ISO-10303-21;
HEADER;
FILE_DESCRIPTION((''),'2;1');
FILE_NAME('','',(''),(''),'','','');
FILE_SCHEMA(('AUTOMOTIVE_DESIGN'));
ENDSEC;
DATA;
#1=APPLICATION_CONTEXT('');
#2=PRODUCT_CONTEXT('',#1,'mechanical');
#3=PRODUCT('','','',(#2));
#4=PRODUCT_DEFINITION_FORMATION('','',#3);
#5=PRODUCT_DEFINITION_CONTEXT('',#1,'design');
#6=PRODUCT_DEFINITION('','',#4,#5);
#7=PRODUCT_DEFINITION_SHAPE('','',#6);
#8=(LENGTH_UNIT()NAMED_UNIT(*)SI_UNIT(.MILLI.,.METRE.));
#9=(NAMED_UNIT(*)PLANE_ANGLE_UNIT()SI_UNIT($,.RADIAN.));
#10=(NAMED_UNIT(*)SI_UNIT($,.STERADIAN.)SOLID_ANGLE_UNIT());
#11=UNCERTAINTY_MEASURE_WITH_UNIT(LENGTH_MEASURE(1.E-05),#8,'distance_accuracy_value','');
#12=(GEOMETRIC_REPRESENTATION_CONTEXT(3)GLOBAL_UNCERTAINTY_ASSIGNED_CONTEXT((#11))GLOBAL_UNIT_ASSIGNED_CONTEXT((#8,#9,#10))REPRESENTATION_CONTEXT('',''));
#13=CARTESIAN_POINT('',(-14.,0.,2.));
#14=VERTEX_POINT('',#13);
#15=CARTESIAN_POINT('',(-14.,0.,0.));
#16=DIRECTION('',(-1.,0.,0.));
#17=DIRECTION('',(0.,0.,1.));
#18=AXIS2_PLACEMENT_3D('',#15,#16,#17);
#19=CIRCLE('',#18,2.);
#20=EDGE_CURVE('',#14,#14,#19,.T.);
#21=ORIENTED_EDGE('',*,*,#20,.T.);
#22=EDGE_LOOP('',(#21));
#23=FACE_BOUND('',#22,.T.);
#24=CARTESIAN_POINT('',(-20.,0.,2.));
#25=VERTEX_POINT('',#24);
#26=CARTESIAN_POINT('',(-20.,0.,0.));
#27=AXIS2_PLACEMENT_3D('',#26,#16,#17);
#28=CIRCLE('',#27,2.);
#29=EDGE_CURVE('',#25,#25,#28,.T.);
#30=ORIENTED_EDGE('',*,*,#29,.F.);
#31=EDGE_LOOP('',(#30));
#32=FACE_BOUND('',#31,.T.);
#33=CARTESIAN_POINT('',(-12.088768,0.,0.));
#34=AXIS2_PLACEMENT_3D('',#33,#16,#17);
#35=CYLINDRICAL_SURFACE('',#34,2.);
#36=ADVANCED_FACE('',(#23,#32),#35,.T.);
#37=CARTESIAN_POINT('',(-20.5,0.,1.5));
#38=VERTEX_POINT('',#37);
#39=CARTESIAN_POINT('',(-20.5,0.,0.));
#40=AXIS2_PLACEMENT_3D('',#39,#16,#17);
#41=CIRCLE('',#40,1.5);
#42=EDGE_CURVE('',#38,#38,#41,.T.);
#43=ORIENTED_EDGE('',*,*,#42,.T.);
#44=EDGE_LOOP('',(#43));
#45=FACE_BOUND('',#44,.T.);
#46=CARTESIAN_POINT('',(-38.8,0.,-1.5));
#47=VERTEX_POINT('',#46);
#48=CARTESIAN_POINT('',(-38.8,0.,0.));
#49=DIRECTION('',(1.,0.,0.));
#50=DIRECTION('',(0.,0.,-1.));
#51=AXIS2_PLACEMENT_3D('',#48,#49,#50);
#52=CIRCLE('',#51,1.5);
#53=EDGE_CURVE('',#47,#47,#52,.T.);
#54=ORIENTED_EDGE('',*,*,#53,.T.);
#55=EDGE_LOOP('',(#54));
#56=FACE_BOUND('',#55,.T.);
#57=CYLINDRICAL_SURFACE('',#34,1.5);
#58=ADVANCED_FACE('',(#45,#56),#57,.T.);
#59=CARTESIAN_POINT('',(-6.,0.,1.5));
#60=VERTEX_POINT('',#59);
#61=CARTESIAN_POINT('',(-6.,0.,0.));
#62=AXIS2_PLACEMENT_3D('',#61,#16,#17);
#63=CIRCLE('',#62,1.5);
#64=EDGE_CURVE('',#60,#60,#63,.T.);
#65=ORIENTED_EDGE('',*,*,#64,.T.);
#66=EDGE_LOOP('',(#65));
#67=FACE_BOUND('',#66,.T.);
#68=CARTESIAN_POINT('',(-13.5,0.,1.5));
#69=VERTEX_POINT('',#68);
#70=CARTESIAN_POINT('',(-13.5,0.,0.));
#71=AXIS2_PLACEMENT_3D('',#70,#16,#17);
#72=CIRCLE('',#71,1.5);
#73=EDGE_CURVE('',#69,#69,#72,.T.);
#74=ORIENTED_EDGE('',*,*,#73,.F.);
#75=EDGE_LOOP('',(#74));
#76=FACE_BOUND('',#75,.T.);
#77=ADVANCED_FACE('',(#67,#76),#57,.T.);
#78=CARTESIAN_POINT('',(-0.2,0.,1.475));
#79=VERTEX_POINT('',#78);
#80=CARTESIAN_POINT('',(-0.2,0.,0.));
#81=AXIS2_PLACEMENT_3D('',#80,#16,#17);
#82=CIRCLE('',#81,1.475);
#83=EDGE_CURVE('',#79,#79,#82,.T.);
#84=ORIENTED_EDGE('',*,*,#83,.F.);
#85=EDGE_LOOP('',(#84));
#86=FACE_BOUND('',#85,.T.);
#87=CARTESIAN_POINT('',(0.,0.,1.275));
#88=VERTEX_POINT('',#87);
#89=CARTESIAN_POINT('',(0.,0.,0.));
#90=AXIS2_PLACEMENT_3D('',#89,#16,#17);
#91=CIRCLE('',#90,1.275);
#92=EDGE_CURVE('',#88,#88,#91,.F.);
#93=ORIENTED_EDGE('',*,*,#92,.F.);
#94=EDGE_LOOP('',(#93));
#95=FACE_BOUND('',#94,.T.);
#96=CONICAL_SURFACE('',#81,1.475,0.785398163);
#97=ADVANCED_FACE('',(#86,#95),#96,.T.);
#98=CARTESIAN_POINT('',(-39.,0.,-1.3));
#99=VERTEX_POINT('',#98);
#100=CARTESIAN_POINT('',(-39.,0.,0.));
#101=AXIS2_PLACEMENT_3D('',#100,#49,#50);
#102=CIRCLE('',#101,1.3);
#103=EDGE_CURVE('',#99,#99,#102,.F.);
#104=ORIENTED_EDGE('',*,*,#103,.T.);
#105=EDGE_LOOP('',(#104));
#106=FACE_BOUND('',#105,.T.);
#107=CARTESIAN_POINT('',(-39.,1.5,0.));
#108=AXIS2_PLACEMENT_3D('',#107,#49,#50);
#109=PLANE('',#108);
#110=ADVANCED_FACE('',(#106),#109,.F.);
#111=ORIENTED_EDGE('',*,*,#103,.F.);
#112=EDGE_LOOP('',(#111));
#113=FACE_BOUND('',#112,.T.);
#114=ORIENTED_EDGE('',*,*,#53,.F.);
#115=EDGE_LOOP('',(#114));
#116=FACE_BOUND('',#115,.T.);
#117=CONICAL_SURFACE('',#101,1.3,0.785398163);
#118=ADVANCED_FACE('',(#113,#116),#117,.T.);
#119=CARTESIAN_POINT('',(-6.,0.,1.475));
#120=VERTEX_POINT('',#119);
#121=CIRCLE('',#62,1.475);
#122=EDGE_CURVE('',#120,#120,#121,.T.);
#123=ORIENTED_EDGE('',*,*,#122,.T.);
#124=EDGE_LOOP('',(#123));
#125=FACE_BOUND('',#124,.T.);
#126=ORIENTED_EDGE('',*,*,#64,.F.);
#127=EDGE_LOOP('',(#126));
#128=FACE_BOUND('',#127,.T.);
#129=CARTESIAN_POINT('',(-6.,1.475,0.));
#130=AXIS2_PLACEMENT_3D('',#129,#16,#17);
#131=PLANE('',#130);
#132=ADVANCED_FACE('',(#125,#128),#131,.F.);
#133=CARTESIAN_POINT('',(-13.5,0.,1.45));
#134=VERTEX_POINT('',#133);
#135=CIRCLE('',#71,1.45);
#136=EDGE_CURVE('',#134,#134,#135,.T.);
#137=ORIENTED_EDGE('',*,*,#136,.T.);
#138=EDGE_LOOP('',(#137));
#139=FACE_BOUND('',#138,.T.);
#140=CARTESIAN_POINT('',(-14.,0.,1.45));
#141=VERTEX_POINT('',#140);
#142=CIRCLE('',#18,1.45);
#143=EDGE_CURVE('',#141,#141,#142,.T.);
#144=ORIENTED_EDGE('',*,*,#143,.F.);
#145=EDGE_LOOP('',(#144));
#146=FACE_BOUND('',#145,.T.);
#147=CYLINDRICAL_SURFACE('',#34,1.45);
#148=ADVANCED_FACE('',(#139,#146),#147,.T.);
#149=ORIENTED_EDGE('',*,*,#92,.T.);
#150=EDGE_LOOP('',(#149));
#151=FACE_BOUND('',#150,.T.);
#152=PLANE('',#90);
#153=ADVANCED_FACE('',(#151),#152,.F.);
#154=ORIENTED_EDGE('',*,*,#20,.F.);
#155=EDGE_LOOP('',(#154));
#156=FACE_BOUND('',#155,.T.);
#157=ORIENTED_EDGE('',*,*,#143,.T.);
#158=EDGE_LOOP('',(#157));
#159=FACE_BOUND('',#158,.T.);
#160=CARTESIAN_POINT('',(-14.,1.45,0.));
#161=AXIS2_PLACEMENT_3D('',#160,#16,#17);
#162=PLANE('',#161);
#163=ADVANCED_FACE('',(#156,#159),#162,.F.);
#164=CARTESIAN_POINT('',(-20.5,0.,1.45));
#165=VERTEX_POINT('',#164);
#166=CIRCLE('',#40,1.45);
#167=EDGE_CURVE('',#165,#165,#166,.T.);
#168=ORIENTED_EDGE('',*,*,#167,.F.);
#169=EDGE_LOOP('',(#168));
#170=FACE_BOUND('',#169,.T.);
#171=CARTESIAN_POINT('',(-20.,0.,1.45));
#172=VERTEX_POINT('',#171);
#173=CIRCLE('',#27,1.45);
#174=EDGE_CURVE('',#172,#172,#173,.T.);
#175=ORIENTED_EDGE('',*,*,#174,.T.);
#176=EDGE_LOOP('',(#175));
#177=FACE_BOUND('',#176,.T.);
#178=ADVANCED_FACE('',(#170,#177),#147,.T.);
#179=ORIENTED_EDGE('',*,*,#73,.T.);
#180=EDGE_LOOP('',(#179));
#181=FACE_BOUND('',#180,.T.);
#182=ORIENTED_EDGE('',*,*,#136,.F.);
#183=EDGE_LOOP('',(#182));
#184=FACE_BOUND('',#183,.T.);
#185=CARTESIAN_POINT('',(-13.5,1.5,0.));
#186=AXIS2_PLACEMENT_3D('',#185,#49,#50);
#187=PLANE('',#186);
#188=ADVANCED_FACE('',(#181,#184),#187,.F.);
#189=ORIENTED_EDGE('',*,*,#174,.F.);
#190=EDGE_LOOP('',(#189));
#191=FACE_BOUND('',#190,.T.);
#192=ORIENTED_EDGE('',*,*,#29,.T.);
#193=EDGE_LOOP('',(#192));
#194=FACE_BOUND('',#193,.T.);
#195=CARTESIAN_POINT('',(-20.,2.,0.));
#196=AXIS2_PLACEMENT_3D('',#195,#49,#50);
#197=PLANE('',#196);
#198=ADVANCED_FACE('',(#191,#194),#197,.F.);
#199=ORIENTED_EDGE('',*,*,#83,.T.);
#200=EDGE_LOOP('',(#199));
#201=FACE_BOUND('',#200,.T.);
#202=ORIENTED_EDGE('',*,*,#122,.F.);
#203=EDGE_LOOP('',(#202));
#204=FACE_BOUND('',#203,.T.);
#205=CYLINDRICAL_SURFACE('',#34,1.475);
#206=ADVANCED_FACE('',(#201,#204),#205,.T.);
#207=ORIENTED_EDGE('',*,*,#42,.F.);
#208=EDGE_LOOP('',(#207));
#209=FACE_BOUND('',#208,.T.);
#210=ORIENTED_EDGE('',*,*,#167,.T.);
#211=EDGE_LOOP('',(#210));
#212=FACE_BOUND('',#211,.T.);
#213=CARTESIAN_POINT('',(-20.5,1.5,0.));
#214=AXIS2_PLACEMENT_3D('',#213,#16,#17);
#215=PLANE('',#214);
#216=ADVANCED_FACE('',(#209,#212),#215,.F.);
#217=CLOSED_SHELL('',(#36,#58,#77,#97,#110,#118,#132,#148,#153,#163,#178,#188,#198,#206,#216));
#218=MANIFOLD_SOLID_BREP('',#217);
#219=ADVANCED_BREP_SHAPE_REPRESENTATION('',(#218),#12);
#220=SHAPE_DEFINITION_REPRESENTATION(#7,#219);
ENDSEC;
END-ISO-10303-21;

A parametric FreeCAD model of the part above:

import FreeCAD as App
import Part
import Sketcher
from FreeCAD import Vector


def edges_at(feature, points):
    """Names of the edges that pass closest to the given points."""
    edges = feature.Shape.Edges
    near = lambda p: min(range(len(edges)), key=lambda i: edges[i].distToShape(Part.Vertex(*p))[0])
    return sorted({f"Edge{near(p) + 1}" for p in points})

doc = App.newDocument("Part")
body = doc.addObject("PartDesign::Body", "Body")

# Sketch on XY plane
sketch1 = body.newObject("Sketcher::SketchObject", "Sketch")
sketch1.AttachmentSupport = (doc.getObject("XY_Plane"), [""])
sketch1.MapMode = "FlatFace"
sketch1.addGeometry([
    Part.LineSegment(Vector(0, 0, 0), Vector(0, 1.475, 0)),  # 0
    Part.LineSegment(Vector(0, 1.475, 0), Vector(-6, 1.475, 0)),  # 1
    Part.LineSegment(Vector(-6, 1.475, 0), Vector(-6, 1.5, 0)),  # 2
    Part.LineSegment(Vector(-6, 1.5, 0), Vector(-13.5, 1.5, 0)),  # 3
    Part.LineSegment(Vector(-13.5, 1.5, 0), Vector(-13.5, 1.45, 0)),  # 4
    Part.LineSegment(Vector(-13.5, 1.45, 0), Vector(-14, 1.45, 0)),  # 5
    Part.LineSegment(Vector(-14, 1.45, 0), Vector(-14, 2, 0)),  # 6
    Part.LineSegment(Vector(-14, 2, 0), Vector(-20, 2, 0)),  # 7
    Part.LineSegment(Vector(-20, 2, 0), Vector(-20, 1.45, 0)),  # 8
    Part.LineSegment(Vector(-20, 1.45, 0), Vector(-20.5, 1.45, 0)),  # 9
    Part.LineSegment(Vector(-20.5, 1.45, 0), Vector(-20.5, 1.5, 0)),  # 10
    Part.LineSegment(Vector(-20.5, 1.5, 0), Vector(-39, 1.5, 0)),  # 11
    Part.LineSegment(Vector(-39, 1.5, 0), Vector(-39, 0, 0)),  # 12
    Part.LineSegment(Vector(-39, 0, 0), Vector(0, 0, 0)),  # 13
], False)
sketch1.addConstraint([
    Sketcher.Constraint("Coincident", 0, 2, 1, 1),
    Sketcher.Constraint("Coincident", 1, 2, 2, 1),
    Sketcher.Constraint("Coincident", 2, 2, 3, 1),
    Sketcher.Constraint("Coincident", 3, 2, 4, 1),
    Sketcher.Constraint("Coincident", 4, 2, 5, 1),
    Sketcher.Constraint("Coincident", 5, 2, 6, 1),
    Sketcher.Constraint("Coincident", 6, 2, 7, 1),
    Sketcher.Constraint("Coincident", 7, 2, 8, 1),
    Sketcher.Constraint("Coincident", 8, 2, 9, 1),
    Sketcher.Constraint("Coincident", 9, 2, 10, 1),
    Sketcher.Constraint("Coincident", 10, 2, 11, 1),
    Sketcher.Constraint("Coincident", 11, 2, 12, 1),
    Sketcher.Constraint("Coincident", 12, 2, 13, 1),
    Sketcher.Constraint("Coincident", 13, 2, 0, 1),
    Sketcher.Constraint("Vertical", 0),
    Sketcher.Constraint("Horizontal", 1),
    Sketcher.Constraint("Vertical", 2),
    Sketcher.Constraint("Horizontal", 3),
    Sketcher.Constraint("Vertical", 4),
    Sketcher.Constraint("Horizontal", 5),
    Sketcher.Constraint("Vertical", 6),
    Sketcher.Constraint("Horizontal", 7),
    Sketcher.Constraint("Vertical", 8),
    Sketcher.Constraint("Horizontal", 9),
    Sketcher.Constraint("Vertical", 10),
    Sketcher.Constraint("Horizontal", 11),
    Sketcher.Constraint("Vertical", 12),
    Sketcher.Constraint("Horizontal", 13),
    Sketcher.Constraint("Coincident", 13, 2, -1, 1),
    Sketcher.Constraint("Horizontal", 5, 2, 8, 2),
    Sketcher.Constraint("Horizontal", 3, 2, 10, 2),
    Sketcher.Constraint("Equal", 1, 7),
    Sketcher.Constraint("Equal", 5, 9),
    Sketcher.Constraint("DistanceX", 1, 2, 1, 1, 6.0),
    Sketcher.Constraint("DistanceX", 13, 1, 13, 2, 39.0),
    Sketcher.Constraint("DistanceX", 3, 2, 3, 1, 7.5),
    Sketcher.Constraint("DistanceX", 5, 2, 5, 1, 0.5),
    Sketcher.Constraint("DistanceY", 12, 2, 12, 1, 1.5),
    Sketcher.Constraint("DistanceY", -1, 1, 6, 2, 2.0),
    Sketcher.Constraint("DistanceY", 4, 2, 4, 1, 0.05),
    Sketcher.Constraint("DistanceY", 0, 1, 0, 2, 1.475),
])
revolution = body.newObject("PartDesign::Revolution", "Revolution")
revolution.Profile = sketch1
revolution.ReferenceAxis = (sketch1, ["H_Axis"])
revolution.Angle = 360
doc.recompute()

chamfer = body.newObject("PartDesign::Chamfer", "Chamfer")
chamfer.Base = (revolution, edges_at(revolution, [(0, 0, -1.475), (-39, 0, -1.5)]))
chamfer.Size = 0.2

doc.recompute()
